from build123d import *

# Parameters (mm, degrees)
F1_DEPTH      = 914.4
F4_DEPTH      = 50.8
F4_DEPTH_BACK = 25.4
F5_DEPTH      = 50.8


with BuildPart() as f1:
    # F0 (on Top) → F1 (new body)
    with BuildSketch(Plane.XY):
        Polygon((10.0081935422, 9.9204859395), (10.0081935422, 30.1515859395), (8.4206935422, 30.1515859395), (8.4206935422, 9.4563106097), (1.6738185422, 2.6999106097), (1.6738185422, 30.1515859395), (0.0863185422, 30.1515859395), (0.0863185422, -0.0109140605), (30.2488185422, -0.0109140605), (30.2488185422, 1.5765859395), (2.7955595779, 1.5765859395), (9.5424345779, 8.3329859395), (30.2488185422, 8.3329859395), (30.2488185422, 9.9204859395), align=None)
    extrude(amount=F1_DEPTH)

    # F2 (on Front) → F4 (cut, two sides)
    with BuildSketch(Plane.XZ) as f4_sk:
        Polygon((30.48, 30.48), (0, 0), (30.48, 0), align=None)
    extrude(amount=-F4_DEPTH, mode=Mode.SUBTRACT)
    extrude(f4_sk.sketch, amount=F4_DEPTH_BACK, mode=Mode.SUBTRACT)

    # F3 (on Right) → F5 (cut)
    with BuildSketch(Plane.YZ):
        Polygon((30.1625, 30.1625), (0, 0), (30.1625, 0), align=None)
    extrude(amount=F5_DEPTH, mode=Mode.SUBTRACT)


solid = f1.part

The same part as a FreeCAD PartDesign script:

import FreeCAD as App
import Part
import Sketcher
Q = App.Units.Quantity

doc = App.newDocument("Part")
params = doc.addObject("Spreadsheet::Sheet", "Params")
for row, (alias, value) in enumerate([
    ("sketch1_width", "0.0625 in"),
    ("sketch1_width2", "1.1875 in"),
    ("sketch1_width3", "0.796875 in"),
    ("pad1_length", "36 in"),
    ("sketch2_width", "1.2 in"),
    ("sketch3_width", "1.1875 in"),
    ("pocket2_length", "2 in"),
], start=1):
    params.set(f"A{row}", alias)
    params.set(f"B{row}", "=" + value)
    params.setAlias(f"B{row}", alias)

body = doc.addObject("PartDesign::Body", "Body")

sketch1 = doc.addObject("Sketcher::SketchObject", "Sketch")
body.addObject(sketch1)
sketch1.AttachmentSupport = (doc.XY_Plane, [""])
sketch1.MapMode = "FlatFace"
sketch1.addGeometry([
    Part.LineSegment(App.Vector(10.008194, 9.920486, 0), App.Vector(10.008194, 30.151586, 0)),
    Part.LineSegment(App.Vector(10.008194, 30.151586, 0), App.Vector(8.420694, 30.151586, 0)),
    Part.LineSegment(App.Vector(8.420694, 30.151586, 0), App.Vector(8.420694, 9.456311, 0)),
    Part.LineSegment(App.Vector(8.420694, 9.456311, 0), App.Vector(1.673819, 2.699911, 0)),
    Part.LineSegment(App.Vector(1.673819, 2.699911, 0), App.Vector(1.673819, 30.151586, 0)),
    Part.LineSegment(App.Vector(1.673819, 30.151586, 0), App.Vector(0.086319, 30.151586, 0)),
    Part.LineSegment(App.Vector(0.086319, 30.151586, 0), App.Vector(0.086319, -0.010914, 0)),
    Part.LineSegment(App.Vector(0.086319, -0.010914, 0), App.Vector(30.248819, -0.010914, 0)),
    Part.LineSegment(App.Vector(30.248819, -0.010914, 0), App.Vector(30.248819, 1.576586, 0)),
    Part.LineSegment(App.Vector(30.248819, 1.576586, 0), App.Vector(2.79556, 1.576586, 0)),
    Part.LineSegment(App.Vector(2.79556, 1.576586, 0), App.Vector(9.542435, 8.332986, 0)),
    Part.LineSegment(App.Vector(9.542435, 8.332986, 0), App.Vector(30.248819, 8.332986, 0)),
    Part.LineSegment(App.Vector(30.248819, 8.332986, 0), App.Vector(30.248819, 9.920486, 0)),
    Part.LineSegment(App.Vector(30.248819, 9.920486, 0), App.Vector(10.008194, 9.920486, 0)),
], False)
sketch1.addConstraint([
    Sketcher.Constraint("Coincident", 0, 2, 1, 1),
    Sketcher.Constraint("Coincident", 1, 2, 2, 1),
    Sketcher.Constraint("Coincident", 2, 2, 3, 1),
    Sketcher.Constraint("Coincident", 3, 2, 4, 1),
    Sketcher.Constraint("Coincident", 4, 2, 5, 1),
    Sketcher.Constraint("Coincident", 5, 2, 6, 1),
    Sketcher.Constraint("Coincident", 6, 2, 7, 1),
    Sketcher.Constraint("Coincident", 7, 2, 8, 1),
    Sketcher.Constraint("Coincident", 8, 2, 9, 1),
    Sketcher.Constraint("Coincident", 9, 2, 10, 1),
    Sketcher.Constraint("Coincident", 10, 2, 11, 1),
    Sketcher.Constraint("Coincident", 11, 2, 12, 1),
    Sketcher.Constraint("Coincident", 12, 2, 13, 1),
    Sketcher.Constraint("Coincident", 13, 2, 0, 1),
    Sketcher.Constraint("Vertical", 0),
    Sketcher.Constraint("Horizontal", 1),
    Sketcher.Constraint("Vertical", 2),
    Sketcher.Constraint("Vertical", 4),
    Sketcher.Constraint("Horizontal", 5),
    Sketcher.Constraint("Vertical", 6),
    Sketcher.Constraint("Horizontal", 7),
    Sketcher.Constraint("Vertical", 8),
    Sketcher.Constraint("Horizontal", 9),
    Sketcher.Constraint("Horizontal", 11),
    Sketcher.Constraint("Vertical", 12),
    Sketcher.Constraint("Horizontal", 13),
    Sketcher.Constraint("Parallel", 3, 10),
    Sketcher.Constraint("Horizontal", 1, 2, 4, 2),
    Sketcher.Constraint("Vertical", 8, 2, 11, 2),
    Sketcher.Constraint("Equal", 1, 5),
    Sketcher.Constraint("Equal", 7, 6),
    Sketcher.Constraint("Equal", 5, 8),
    Sketcher.Constraint("Equal", 8, 12),
    Sketcher.Constraint("Equal", 3, 10),
    Sketcher.Constraint("DistanceX", 1, 2, 1, 1, Q("0.0625 in")),
    Sketcher.Constraint("DistanceX", 7, 1, 7, 2, Q("1.1875 in")),
    Sketcher.Constraint("DistanceX", 13, 2, 13, 1, Q("0.796875 in")),
    Sketcher.Constraint("DistanceY", 0, 1, 0, 2, Q("0.7965 in")),
    Sketcher.Constraint("DistanceX", 9, 2, 9, 1, 27.453259),
    Sketcher.Constraint("DistanceY", 2, 2, 2, 1, 20.695275),
    Sketcher.Constraint("DistanceY", -1, 1, 2, 2, 9.456311),
    Sketcher.Constraint("DistanceX", -1, 1, 3, 2, 1.673819),
])
sketch1.setExpression("Constraints[34]", "Params.sketch1_width")
sketch1.setExpression("Constraints[35]", "Params.sketch1_width2")
sketch1.setExpression("Constraints[36]", "Params.sketch1_width3")
pad1 = doc.addObject("PartDesign::Pad", "Pad")
body.addObject(pad1)
pad1.Profile = sketch1
pad1.setExpression("Length", "Params.pad1_length")

sketch2 = doc.addObject("Sketcher::SketchObject", "Sketch001")
body.addObject(sketch2)
sketch2.AttachmentSupport = (doc.XZ_Plane, [""])
sketch2.MapMode = "FlatFace"
sketch2.addGeometry([
    Part.LineSegment(App.Vector(30.48, 30.48, 0), App.Vector(0, 0, 0)),
    Part.LineSegment(App.Vector(0, 0, 0), App.Vector(30.48, 0, 0)),
    Part.LineSegment(App.Vector(30.48, 0, 0), App.Vector(30.48, 30.48, 0)),
], False)
sketch2.addConstraint([
    Sketcher.Constraint("Coincident", 0, 2, 1, 1),
    Sketcher.Constraint("Coincident", 1, 2, 2, 1),
    Sketcher.Constraint("Coincident", 2, 2, 0, 1),
    Sketcher.Constraint("Horizontal", 1),
    Sketcher.Constraint("Vertical", 2),
    Sketcher.Constraint("Coincident", 0, 2, -1, 1),
    Sketcher.Constraint("Equal", 1, 2),
    Sketcher.Constraint("DistanceX", 1, 1, 1, 2, Q("1.2 in")),
])
sketch2.setExpression("Constraints[7]", "Params.sketch2_width")
pocket1 = doc.addObject("PartDesign::Pocket", "Pocket")
body.addObject(pocket1)
pocket1.Profile = sketch2
pocket1.Type = "ThroughAll"
pocket1.Midplane = True

sketch3 = doc.addObject("Sketcher::SketchObject", "Sketch002")
body.addObject(sketch3)
sketch3.AttachmentSupport = (doc.YZ_Plane, [""])
sketch3.MapMode = "FlatFace"
sketch3.addGeometry([
    Part.LineSegment(App.Vector(30.1625, 30.1625, 0), App.Vector(0, 0, 0)),
    Part.LineSegment(App.Vector(0, 0, 0), App.Vector(30.1625, 0, 0)),
    Part.LineSegment(App.Vector(30.1625, 0, 0), App.Vector(30.1625, 30.1625, 0)),
], False)
sketch3.addConstraint([
    Sketcher.Constraint("Coincident", 0, 2, 1, 1),
    Sketcher.Constraint("Coincident", 1, 2, 2, 1),
    Sketcher.Constraint("Coincident", 2, 2, 0, 1),
    Sketcher.Constraint("Horizontal", 1),
    Sketcher.Constraint("Vertical", 2),
    Sketcher.Constraint("Coincident", 0, 2, -1, 1),
    Sketcher.Constraint("Equal", 1, 2),
    Sketcher.Constraint("DistanceX", 1, 1, 1, 2, Q("1.1875 in")),
])
sketch3.setExpression("Constraints[7]", "Params.sketch3_width")
pocket2 = doc.addObject("PartDesign::Pocket", "Pocket001")
body.addObject(pocket2)
pocket2.Profile = sketch3
pocket2.setExpression("Length", "Params.pocket2_length")
pocket2.Reversed = True

doc.recompute()
